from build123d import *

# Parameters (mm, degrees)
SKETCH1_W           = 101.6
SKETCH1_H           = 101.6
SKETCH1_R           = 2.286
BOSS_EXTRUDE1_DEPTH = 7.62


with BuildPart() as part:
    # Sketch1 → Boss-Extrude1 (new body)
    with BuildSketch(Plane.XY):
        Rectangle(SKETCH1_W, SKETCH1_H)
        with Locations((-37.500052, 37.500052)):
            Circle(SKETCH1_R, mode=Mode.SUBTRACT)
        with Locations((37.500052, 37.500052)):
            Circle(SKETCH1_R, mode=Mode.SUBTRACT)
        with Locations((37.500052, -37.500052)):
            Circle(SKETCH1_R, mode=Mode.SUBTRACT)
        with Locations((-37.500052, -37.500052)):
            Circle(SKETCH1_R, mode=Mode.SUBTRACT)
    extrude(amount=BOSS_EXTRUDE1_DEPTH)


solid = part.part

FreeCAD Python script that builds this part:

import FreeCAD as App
import Part
import Sketcher
from FreeCAD import Vector
Q = App.Units.Quantity


def add_polygon(sketch, points):
    """Adds a closed chain of lines whose ends are joined by coincident constraints."""
    first, n = sketch.GeometryCount, len(points)
    for a, b in zip(points, points[1:] + points[:1]):
        sketch.addGeometry(Part.LineSegment(App.Vector(*a, 0), App.Vector(*b, 0)), False)
    for i in range(n):
        sketch.addConstraint(Sketcher.Constraint("Coincident", first + i, 2, first + (i + 1) % n, 1))

doc = App.newDocument("Part")
body = doc.addObject("PartDesign::Body", "Body")

# Sketch on XY plane
sketch1 = doc.addObject("Sketcher::SketchObject", "Sketch")
body.addObject(sketch1)
sketch1.AttachmentSupport = (doc.XY_Plane, [""])
sketch1.MapMode = "FlatFace"
add_polygon(sketch1, [(-50.8, 50.8), (-50.8, -50.8), (50.8, -50.8), (50.8, 50.8)])  # lines 0-3
sketch1.addGeometry(Part.Circle(Vector(-37.5, -37.5, 0), Vector(0, 0, 1), 2.3), False)  # 4
sketch1.addGeometry(Part.Circle(Vector(37.5, -37.5, 0), Vector(0, 0, 1), 2.3), False)  # 5
sketch1.addGeometry(Part.Circle(Vector(-37.5, 37.5, 0), Vector(0, 0, 1), 2.3), False)  # 6
sketch1.addGeometry(Part.Circle(Vector(37.5, 37.5, 0), Vector(0, 0, 1), 2.3), False)  # 7
sketch1.addConstraint([
    Sketcher.Constraint("Vertical", 0),
    Sketcher.Constraint("Horizontal", 1),
    Sketcher.Constraint("Vertical", 2),
    Sketcher.Constraint("Horizontal", 3),
    Sketcher.Constraint("Equal", 4, 5),
    Sketcher.Constraint("Equal", 5, 6),
    Sketcher.Constraint("Equal", 6, 7),
    Sketcher.Constraint("Symmetric", 5, 3, 6, 3, -1, 1),
    Sketcher.Constraint("Symmetric", 4, 3, 7, 3, -1, 1),
    Sketcher.Constraint("Symmetric", 0, 2, 2, 2, -1, 1),
    Sketcher.Constraint("Symmetric", 4, 3, 5, 3, -2),
    Sketcher.Constraint("Equal", 3, 0),
    Sketcher.Constraint("Diameter", 4, Q("0.18 in")),
    Sketcher.Constraint("DistanceX", 1, 1, 1, 2, Q("4 in")),
    Sketcher.Constraint("DistanceX", 4, 3, -1, 1, Q("37.500052 mm")),
    Sketcher.Constraint("DistanceY", 4, 3, -1, 1, Q("37.500052 mm")),
])
pad1 = doc.addObject("PartDesign::Pad", "Pad")
body.addObject(pad1)
pad1.Profile = sketch1
pad1.Length = Q("0.3 in")

doc.recompute()
